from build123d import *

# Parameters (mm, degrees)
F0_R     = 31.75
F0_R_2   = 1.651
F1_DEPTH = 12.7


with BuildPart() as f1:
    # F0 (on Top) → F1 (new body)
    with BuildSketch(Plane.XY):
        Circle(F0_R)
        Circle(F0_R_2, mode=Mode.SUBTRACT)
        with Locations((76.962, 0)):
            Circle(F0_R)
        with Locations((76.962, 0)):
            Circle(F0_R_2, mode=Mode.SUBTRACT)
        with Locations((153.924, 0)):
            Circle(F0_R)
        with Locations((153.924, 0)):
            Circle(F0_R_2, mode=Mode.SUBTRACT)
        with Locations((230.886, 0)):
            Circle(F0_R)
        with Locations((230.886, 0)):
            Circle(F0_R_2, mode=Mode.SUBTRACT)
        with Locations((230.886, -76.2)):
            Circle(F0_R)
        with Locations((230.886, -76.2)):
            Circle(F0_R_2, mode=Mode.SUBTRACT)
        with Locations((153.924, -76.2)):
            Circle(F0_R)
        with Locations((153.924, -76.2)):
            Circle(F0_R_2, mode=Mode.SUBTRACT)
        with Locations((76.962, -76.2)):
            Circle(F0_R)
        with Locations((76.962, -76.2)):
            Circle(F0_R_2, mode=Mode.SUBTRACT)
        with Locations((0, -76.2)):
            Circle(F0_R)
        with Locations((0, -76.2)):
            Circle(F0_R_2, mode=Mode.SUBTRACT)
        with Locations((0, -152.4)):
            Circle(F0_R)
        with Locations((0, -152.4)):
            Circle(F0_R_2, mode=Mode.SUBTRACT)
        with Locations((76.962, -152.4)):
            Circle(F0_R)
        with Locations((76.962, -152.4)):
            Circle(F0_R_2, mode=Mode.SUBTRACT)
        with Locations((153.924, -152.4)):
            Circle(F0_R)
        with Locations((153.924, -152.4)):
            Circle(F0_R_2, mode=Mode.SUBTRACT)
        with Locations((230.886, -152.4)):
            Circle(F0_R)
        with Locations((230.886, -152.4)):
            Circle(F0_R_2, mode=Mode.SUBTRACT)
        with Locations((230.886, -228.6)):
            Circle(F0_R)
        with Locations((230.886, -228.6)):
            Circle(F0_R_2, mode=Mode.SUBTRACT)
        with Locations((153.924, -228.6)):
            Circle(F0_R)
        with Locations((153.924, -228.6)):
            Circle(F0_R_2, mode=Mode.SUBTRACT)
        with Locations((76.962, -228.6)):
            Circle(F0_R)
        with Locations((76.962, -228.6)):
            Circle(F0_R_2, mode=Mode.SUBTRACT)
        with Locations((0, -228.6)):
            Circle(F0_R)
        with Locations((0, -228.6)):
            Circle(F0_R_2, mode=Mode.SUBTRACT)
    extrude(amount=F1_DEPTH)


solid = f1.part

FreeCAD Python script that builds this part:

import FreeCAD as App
import Part
import Sketcher

V = App.Vector
Q = App.Units.Quantity

doc = App.newDocument("Part")
params = doc.addObject("Spreadsheet::Sheet", "Params")
for row, (alias, value) in enumerate([
    ("sketch1_diameter", "2.5 in"),
    ("sketch1_diameter2", "0.13 in"),
    ("pad1_length", "0.5 in"),
], start=1):
    params.set(f"A{row}", alias)
    params.set(f"B{row}", "=" + value)
    params.setAlias(f"B{row}", alias)

body = doc.addObject("PartDesign::Body", "Body")
body.AllowCompound = True

sketch1 = doc.addObject("Sketcher::SketchObject", "Sketch")
body.addObject(sketch1)
sketch1.AttachmentSupport = (doc.XY_Plane, [""])
sketch1.MapMode = "FlatFace"
sketch1.addGeometry(Part.Circle(V(0, 0, 0), V(0, 0, 1), 31.75), False)
sketch1.addGeometry(Part.Circle(V(0, 0, 0), V(0, 0, 1), 1.651), False)
sketch1.addGeometry(Part.Circle(V(76.962, 0, 0), V(0, 0, 1), 31.75), False)
sketch1.addGeometry(Part.Circle(V(76.962, 0, 0), V(0, 0, 1), 1.651), False)
sketch1.addGeometry(Part.Circle(V(153.924, 0, 0), V(0, 0, 1), 31.75), False)
sketch1.addGeometry(Part.Circle(V(153.924, 0, 0), V(0, 0, 1), 1.651), False)
sketch1.addGeometry(Part.Circle(V(230.886, 0, 0), V(0, 0, 1), 31.75), False)
sketch1.addGeometry(Part.Circle(V(230.886, 0, 0), V(0, 0, 1), 1.651), False)
sketch1.addGeometry(Part.Circle(V(230.886, -76.2, 0), V(0, 0, 1), 31.75), False)
sketch1.addGeometry(Part.Circle(V(230.886, -76.2, 0), V(0, 0, 1), 1.651), False)
sketch1.addGeometry(Part.Circle(V(153.924, -76.2, 0), V(0, 0, 1), 31.75), False)
sketch1.addGeometry(Part.Circle(V(153.924, -76.2, 0), V(0, 0, 1), 1.651), False)
sketch1.addGeometry(Part.Circle(V(76.962, -76.2, 0), V(0, 0, 1), 31.75), False)
sketch1.addGeometry(Part.Circle(V(76.962, -76.2, 0), V(0, 0, 1), 1.651), False)
sketch1.addGeometry(Part.Circle(V(0, -76.2, 0), V(0, 0, 1), 31.75), False)
sketch1.addGeometry(Part.Circle(V(0, -76.2, 0), V(0, 0, 1), 1.651), False)
sketch1.addGeometry(Part.Circle(V(0, -152.4, 0), V(0, 0, 1), 31.75), False)
sketch1.addGeometry(Part.Circle(V(0, -152.4, 0), V(0, 0, 1), 1.651), False)
sketch1.addGeometry(Part.Circle(V(76.962, -152.4, 0), V(0, 0, 1), 31.75), False)
sketch1.addGeometry(Part.Circle(V(76.962, -152.4, 0), V(0, 0, 1), 1.651), False)
sketch1.addGeometry(Part.Circle(V(153.924, -152.4, 0), V(0, 0, 1), 31.75), False)
sketch1.addGeometry(Part.Circle(V(153.924, -152.4, 0), V(0, 0, 1), 1.651), False)
sketch1.addGeometry(Part.Circle(V(230.886, -152.4, 0), V(0, 0, 1), 31.75), False)
sketch1.addGeometry(Part.Circle(V(230.886, -152.4, 0), V(0, 0, 1), 1.651), False)
sketch1.addGeometry(Part.Circle(V(230.886, -228.6, 0), V(0, 0, 1), 31.75), False)
sketch1.addGeometry(Part.Circle(V(230.886, -228.6, 0), V(0, 0, 1), 1.651), False)
sketch1.addGeometry(Part.Circle(V(153.924, -228.6, 0), V(0, 0, 1), 31.75), False)
sketch1.addGeometry(Part.Circle(V(153.924, -228.6, 0), V(0, 0, 1), 1.651), False)
sketch1.addGeometry(Part.Circle(V(76.962, -228.6, 0), V(0, 0, 1), 31.75), False)
sketch1.addGeometry(Part.Circle(V(76.962, -228.6, 0), V(0, 0, 1), 1.651), False)
sketch1.addGeometry(Part.Circle(V(0, -228.6, 0), V(0, 0, 1), 31.75), False)
sketch1.addGeometry(Part.Circle(V(0, -228.6, 0), V(0, 0, 1), 1.651), False)
sketch1.addConstraint(Sketcher.Constraint("Coincident", 0, 3, -1, 1))
sketch1.addConstraint(Sketcher.Constraint("Coincident", 1, 3, -1, 1))
sketch1.addConstraint(Sketcher.Constraint("Coincident", 3, 3, 2, 3))
sketch1.addConstraint(Sketcher.Constraint("Coincident", 5, 3, 4, 3))
sketch1.addConstraint(Sketcher.Constraint("Coincident", 7, 3, 6, 3))
sketch1.addConstraint(Sketcher.Constraint("Coincident", 9, 3, 8, 3))
sketch1.addConstraint(Sketcher.Constraint("Coincident", 11, 3, 10, 3))
sketch1.addConstraint(Sketcher.Constraint("Coincident", 13, 3, 12, 3))
sketch1.addConstraint(Sketcher.Constraint("Coincident", 15, 3, 14, 3))
sketch1.addConstraint(Sketcher.Constraint("Coincident", 17, 3, 16, 3))
sketch1.addConstraint(Sketcher.Constraint("Coincident", 19, 3, 18, 3))
sketch1.addConstraint(Sketcher.Constraint("Coincident", 21, 3, 20, 3))
sketch1.addConstraint(Sketcher.Constraint("Coincident", 23, 3, 22, 3))
sketch1.addConstraint(Sketcher.Constraint("Coincident", 25, 3, 24, 3))
sketch1.addConstraint(Sketcher.Constraint("Coincident", 27, 3, 26, 3))
sketch1.addConstraint(Sketcher.Constraint("Coincident", 29, 3, 28, 3))
sketch1.addConstraint(Sketcher.Constraint("Coincident", 31, 3, 30, 3))
sketch1.addConstraint(Sketcher.Constraint("Equal", 0, 2))
sketch1.addConstraint(Sketcher.Constraint("Equal", 1, 3))
sketch1.addConstraint(Sketcher.Constraint("Equal", 2, 4))
sketch1.addConstraint(Sketcher.Constraint("Equal", 3, 5))
sketch1.addConstraint(Sketcher.Constraint("Equal", 4, 6))
sketch1.addConstraint(Sketcher.Constraint("Equal", 5, 7))
sketch1.addConstraint(Sketcher.Constraint("Equal", 6, 8))
sketch1.addConstraint(Sketcher.Constraint("Equal", 7, 9))
sketch1.addConstraint(Sketcher.Constraint("Equal", 8, 10))
sketch1.addConstraint(Sketcher.Constraint("Equal", 9, 11))
sketch1.addConstraint(Sketcher.Constraint("Equal", 10, 12))
sketch1.addConstraint(Sketcher.Constraint("Equal", 11, 13))
sketch1.addConstraint(Sketcher.Constraint("Equal", 12, 14))
sketch1.addConstraint(Sketcher.Constraint("Equal", 13, 15))
sketch1.addConstraint(Sketcher.Constraint("Equal", 14, 16))
sketch1.addConstraint(Sketcher.Constraint("Equal", 15, 17))
sketch1.addConstraint(Sketcher.Constraint("Equal", 16, 18))
sketch1.addConstraint(Sketcher.Constraint("Equal", 17, 19))
sketch1.addConstraint(Sketcher.Constraint("Equal", 18, 20))
sketch1.addConstraint(Sketcher.Constraint("Equal", 19, 21))
sketch1.addConstraint(Sketcher.Constraint("Equal", 20, 22))
sketch1.addConstraint(Sketcher.Constraint("Equal", 21, 23))
sketch1.addConstraint(Sketcher.Constraint("Equal", 22, 24))
sketch1.addConstraint(Sketcher.Constraint("Equal", 23, 25))
sketch1.addConstraint(Sketcher.Constraint("Equal", 24, 26))
sketch1.addConstraint(Sketcher.Constraint("Equal", 25, 27))
sketch1.addConstraint(Sketcher.Constraint("Equal", 26, 28))
sketch1.addConstraint(Sketcher.Constraint("Equal", 27, 29))
sketch1.addConstraint(Sketcher.Constraint("Equal", 28, 30))
sketch1.addConstraint(Sketcher.Constraint("Equal", 29, 31))
sketch1.addConstraint(Sketcher.Constraint("PointOnObject", 2, 3, -1))
sketch1.addConstraint(Sketcher.Constraint("PointOnObject", 4, 3, -1))
sketch1.addConstraint(Sketcher.Constraint("PointOnObject", 6, 3, -1))
sketch1.addConstraint(Sketcher.Constraint("PointOnObject", 14, 3, -2))
sketch1.addConstraint(Sketcher.Constraint("PointOnObject", 16, 3, -2))
sketch1.addConstraint(Sketcher.Constraint("PointOnObject", 30, 3, -2))
sketch1.addConstraint(Sketcher.Constraint("Horizontal", 9, 3, 10, 3))
sketch1.addConstraint(Sketcher.Constraint("Horizontal", 11, 3, 12, 3))
sketch1.addConstraint(Sketcher.Constraint("Horizontal", 13, 3, 14, 3))
sketch1.addConstraint(Sketcher.Constraint("Horizontal", 17, 3, 18, 3))
sketch1.addConstraint(Sketcher.Constraint("Horizontal", 19, 3, 20, 3))
sketch1.addConstraint(Sketcher.Constraint("Horizontal", 21, 3, 22, 3))
sketch1.addConstraint(Sketcher.Constraint("Horizontal", 25, 3, 26, 3))
sketch1.addConstraint(Sketcher.Constraint("Horizontal", 27, 3, 28, 3))
sketch1.addConstraint(Sketcher.Constraint("Horizontal", 29, 3, 30, 3))
sketch1.addConstraint(Sketcher.Constraint("Vertical", 7, 3, 8, 3))
sketch1.addConstraint(Sketcher.Constraint("Vertical", 5, 3, 10, 3))
sketch1.addConstraint(Sketcher.Constraint("Vertical", 3, 3, 12, 3))
sketch1.addConstraint(Sketcher.Constraint("Vertical", 13, 3, 18, 3))
sketch1.addConstraint(Sketcher.Constraint("Vertical", 11, 3, 20, 3))
sketch1.addConstraint(Sketcher.Constraint("Vertical", 9, 3, 22, 3))
sketch1.addConstraint(Sketcher.Constraint("Vertical", 23, 3, 24, 3))
sketch1.addConstraint(Sketcher.Constraint("Vertical", 21, 3, 26, 3))
sketch1.addConstraint(Sketcher.Constraint("Vertical", 19, 3, 28, 3))
sketch1.addConstraint(Sketcher.Constraint("Diameter", 0, Q("2.5 in")))
sketch1.addConstraint(Sketcher.Constraint("Diameter", 1, Q("0.13 in")))
sketch1.addConstraint(Sketcher.Constraint("DistanceY", 8, 3, -1, 1, Q("3 in")))
sketch1.addConstraint(Sketcher.Constraint("DistanceY", 16, 3, -1, 1, Q("6 in")))
sketch1.addConstraint(Sketcher.Constraint("DistanceY", 24, 3, -1, 1, Q("9 in")))
sketch1.addConstraint(Sketcher.Constraint("DistanceX", -1, 1, 2, 3, Q("3.03 in")))
sketch1.addConstraint(Sketcher.Constraint("DistanceX", -1, 1, 4, 3, Q("6.06 in")))
sketch1.addConstraint(Sketcher.Constraint("DistanceX", -1, 1, 6, 3, Q("9.09 in")))
sketch1.setExpression("Constraints[71]", "Params.sketch1_diameter")
sketch1.setExpression("Constraints[72]", "Params.sketch1_diameter2")
pad1 = doc.addObject("PartDesign::Pad", "Pad")
body.addObject(pad1)
pad1.Profile = sketch1
pad1.setExpression("Length", "Params.pad1_length")

doc.recompute()
